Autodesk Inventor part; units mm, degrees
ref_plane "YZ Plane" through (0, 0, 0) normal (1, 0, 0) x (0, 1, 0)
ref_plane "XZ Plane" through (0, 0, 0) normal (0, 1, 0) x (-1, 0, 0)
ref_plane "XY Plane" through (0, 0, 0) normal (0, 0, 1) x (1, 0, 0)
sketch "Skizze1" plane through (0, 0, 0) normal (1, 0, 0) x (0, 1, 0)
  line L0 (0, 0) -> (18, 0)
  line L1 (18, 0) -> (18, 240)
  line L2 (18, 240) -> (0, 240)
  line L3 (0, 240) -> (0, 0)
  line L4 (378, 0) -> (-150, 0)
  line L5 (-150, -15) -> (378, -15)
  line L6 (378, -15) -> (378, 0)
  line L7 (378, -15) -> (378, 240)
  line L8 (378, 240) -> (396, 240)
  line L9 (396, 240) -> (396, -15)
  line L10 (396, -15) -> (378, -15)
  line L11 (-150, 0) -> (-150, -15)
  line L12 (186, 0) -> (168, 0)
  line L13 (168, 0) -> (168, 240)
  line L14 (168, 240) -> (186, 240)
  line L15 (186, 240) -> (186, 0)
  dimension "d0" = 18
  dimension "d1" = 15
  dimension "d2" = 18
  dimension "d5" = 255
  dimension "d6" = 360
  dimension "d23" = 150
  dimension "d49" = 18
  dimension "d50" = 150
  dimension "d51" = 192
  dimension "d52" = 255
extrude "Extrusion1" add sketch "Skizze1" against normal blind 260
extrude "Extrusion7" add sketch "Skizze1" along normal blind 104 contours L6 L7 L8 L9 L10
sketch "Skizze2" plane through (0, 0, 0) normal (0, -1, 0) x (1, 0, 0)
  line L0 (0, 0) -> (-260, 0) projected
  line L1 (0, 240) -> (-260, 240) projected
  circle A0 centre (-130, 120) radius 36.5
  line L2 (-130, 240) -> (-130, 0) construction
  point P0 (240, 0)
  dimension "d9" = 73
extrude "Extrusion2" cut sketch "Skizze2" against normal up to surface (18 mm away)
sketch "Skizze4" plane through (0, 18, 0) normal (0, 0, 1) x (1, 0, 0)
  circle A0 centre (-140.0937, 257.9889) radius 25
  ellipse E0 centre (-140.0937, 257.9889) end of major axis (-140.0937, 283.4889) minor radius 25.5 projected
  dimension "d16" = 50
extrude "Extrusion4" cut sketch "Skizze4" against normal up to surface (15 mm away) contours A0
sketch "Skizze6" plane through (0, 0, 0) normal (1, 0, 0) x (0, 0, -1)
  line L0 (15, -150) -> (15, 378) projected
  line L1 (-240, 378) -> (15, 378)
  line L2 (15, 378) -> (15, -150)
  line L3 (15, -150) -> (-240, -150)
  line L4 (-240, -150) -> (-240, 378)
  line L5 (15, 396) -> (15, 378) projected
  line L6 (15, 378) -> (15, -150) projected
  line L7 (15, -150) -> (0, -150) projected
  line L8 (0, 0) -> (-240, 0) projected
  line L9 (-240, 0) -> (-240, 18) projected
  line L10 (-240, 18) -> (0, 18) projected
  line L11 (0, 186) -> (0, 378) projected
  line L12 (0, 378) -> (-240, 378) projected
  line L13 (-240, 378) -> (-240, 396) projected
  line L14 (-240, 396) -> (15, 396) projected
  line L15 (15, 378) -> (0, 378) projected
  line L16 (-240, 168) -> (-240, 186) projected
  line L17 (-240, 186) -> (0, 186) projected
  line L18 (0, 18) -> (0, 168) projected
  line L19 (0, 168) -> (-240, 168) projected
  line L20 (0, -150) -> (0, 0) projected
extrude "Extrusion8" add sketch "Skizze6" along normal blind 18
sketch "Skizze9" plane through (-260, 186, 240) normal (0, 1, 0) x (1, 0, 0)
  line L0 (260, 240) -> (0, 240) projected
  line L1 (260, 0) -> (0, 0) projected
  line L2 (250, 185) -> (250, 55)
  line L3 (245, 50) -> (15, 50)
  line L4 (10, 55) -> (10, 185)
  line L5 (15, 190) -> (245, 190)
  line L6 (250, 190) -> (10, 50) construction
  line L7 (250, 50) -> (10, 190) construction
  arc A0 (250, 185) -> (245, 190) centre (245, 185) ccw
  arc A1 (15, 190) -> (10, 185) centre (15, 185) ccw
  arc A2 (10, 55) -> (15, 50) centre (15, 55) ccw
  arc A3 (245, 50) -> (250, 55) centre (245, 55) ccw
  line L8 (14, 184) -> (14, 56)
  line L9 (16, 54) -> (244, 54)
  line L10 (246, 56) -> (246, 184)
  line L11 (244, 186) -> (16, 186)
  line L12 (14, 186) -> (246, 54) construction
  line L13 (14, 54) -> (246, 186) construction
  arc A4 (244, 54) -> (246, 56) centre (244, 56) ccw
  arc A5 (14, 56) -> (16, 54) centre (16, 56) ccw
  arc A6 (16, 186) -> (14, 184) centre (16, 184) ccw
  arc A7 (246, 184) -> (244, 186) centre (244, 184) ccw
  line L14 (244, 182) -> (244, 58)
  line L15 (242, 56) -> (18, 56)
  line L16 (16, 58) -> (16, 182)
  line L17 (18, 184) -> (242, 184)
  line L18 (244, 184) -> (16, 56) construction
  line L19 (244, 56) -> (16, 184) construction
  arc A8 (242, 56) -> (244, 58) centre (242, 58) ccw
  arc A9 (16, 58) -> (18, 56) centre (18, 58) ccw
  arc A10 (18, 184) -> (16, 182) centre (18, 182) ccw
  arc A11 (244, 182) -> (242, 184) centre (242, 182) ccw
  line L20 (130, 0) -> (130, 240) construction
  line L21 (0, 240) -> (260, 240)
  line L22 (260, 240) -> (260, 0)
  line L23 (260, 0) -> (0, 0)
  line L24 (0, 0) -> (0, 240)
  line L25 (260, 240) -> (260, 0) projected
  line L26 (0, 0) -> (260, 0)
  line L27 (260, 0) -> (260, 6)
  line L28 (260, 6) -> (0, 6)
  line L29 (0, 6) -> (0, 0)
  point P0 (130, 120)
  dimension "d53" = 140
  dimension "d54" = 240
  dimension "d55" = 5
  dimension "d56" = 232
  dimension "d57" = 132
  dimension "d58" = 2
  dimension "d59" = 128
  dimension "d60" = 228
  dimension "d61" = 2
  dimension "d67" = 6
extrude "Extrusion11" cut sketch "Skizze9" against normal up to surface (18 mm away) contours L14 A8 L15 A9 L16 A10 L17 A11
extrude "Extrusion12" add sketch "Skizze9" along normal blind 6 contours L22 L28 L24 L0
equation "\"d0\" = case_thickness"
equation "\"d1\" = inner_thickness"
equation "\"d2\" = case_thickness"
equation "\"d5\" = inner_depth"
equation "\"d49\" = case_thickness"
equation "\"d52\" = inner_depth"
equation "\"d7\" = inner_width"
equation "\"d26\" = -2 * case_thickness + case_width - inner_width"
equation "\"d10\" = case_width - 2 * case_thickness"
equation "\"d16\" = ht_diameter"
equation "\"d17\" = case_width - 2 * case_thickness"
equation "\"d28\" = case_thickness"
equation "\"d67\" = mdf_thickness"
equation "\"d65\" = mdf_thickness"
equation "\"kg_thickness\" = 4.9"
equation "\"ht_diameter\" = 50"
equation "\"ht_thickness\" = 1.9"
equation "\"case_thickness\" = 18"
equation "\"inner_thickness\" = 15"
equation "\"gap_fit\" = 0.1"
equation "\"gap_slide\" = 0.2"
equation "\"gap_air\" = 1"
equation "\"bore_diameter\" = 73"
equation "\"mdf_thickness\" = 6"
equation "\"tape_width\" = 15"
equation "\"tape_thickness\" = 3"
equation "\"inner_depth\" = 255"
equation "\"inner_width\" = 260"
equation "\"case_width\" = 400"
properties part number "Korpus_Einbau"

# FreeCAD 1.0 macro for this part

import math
import FreeCAD as App
import Part
import Sketcher

doc = App.newDocument("Part")
body = doc.addObject("PartDesign::Body", "Body")

# Sketch on YZ plane
sketch1 = body.newObject("Sketcher::SketchObject", "Sketch")
sketch1.AttachmentSupport = (doc.getObject("YZ_Plane"), [""])
sketch1.MapMode = "FlatFace"
sketch1.addGeometry(Part.LineSegment(App.Vector(0, 240, 0), App.Vector(0, 0, 0)), False)
sketch1.addGeometry(Part.LineSegment(App.Vector(0, 0, 0), App.Vector(-150, 0, 0)), False)
sketch1.addGeometry(Part.LineSegment(App.Vector(-150, 0, 0), App.Vector(-150, -15, 0)), False)
sketch1.addGeometry(Part.LineSegment(App.Vector(-150, -15, 0), App.Vector(396, -15, 0)), False)
sketch1.addGeometry(Part.LineSegment(App.Vector(396, -15, 0), App.Vector(396, 240, 0)), False)
sketch1.addGeometry(Part.LineSegment(App.Vector(396, 240, 0), App.Vector(378, 240, 0)), False)
sketch1.addGeometry(Part.LineSegment(App.Vector(378, 240, 0), App.Vector(378, 0, 0)), False)
sketch1.addGeometry(Part.LineSegment(App.Vector(378, 0, 0), App.Vector(186, 0, 0)), False)
sketch1.addGeometry(Part.LineSegment(App.Vector(186, 0, 0), App.Vector(186, 240, 0)), False)
sketch1.addGeometry(Part.LineSegment(App.Vector(186, 240, 0), App.Vector(168, 240, 0)), False)
sketch1.addGeometry(Part.LineSegment(App.Vector(168, 240, 0), App.Vector(168, 0, 0)), False)
sketch1.addGeometry(Part.LineSegment(App.Vector(168, 0, 0), App.Vector(18, 0, 0)), False)
sketch1.addGeometry(Part.LineSegment(App.Vector(18, 0, 0), App.Vector(18, 240, 0)), False)
sketch1.addGeometry(Part.LineSegment(App.Vector(18, 240, 0), App.Vector(0, 240, 0)), False)
sketch1.addConstraint(Sketcher.Constraint("Coincident", 0, 2, 1, 1))
sketch1.addConstraint(Sketcher.Constraint("Coincident", 1, 2, 2, 1))
sketch1.addConstraint(Sketcher.Constraint("Coincident", 2, 2, 3, 1))
sketch1.addConstraint(Sketcher.Constraint("Coincident", 3, 2, 4, 1))
sketch1.addConstraint(Sketcher.Constraint("Coincident", 4, 2, 5, 1))
sketch1.addConstraint(Sketcher.Constraint("Coincident", 5, 2, 6, 1))
sketch1.addConstraint(Sketcher.Constraint("Coincident", 6, 2, 7, 1))
sketch1.addConstraint(Sketcher.Constraint("Coincident", 7, 2, 8, 1))
sketch1.addConstraint(Sketcher.Constraint("Coincident", 8, 2, 9, 1))
sketch1.addConstraint(Sketcher.Constraint("Coincident", 9, 2, 10, 1))
sketch1.addConstraint(Sketcher.Constraint("Coincident", 10, 2, 11, 1))
sketch1.addConstraint(Sketcher.Constraint("Coincident", 11, 2, 12, 1))
sketch1.addConstraint(Sketcher.Constraint("Coincident", 12, 2, 13, 1))
sketch1.addConstraint(Sketcher.Constraint("Coincident", 13, 2, 0, 1))
sketch1.addConstraint(Sketcher.Constraint("Vertical", 0))
sketch1.addConstraint(Sketcher.Constraint("Horizontal", 1))
sketch1.addConstraint(Sketcher.Constraint("Vertical", 2))
sketch1.addConstraint(Sketcher.Constraint("Horizontal", 3))
sketch1.addConstraint(Sketcher.Constraint("Vertical", 4))
sketch1.addConstraint(Sketcher.Constraint("Horizontal", 5))
sketch1.addConstraint(Sketcher.Constraint("Vertical", 6))
sketch1.addConstraint(Sketcher.Constraint("Horizontal", 7))
sketch1.addConstraint(Sketcher.Constraint("Vertical", 8))
sketch1.addConstraint(Sketcher.Constraint("Horizontal", 9))
sketch1.addConstraint(Sketcher.Constraint("Vertical", 10))
sketch1.addConstraint(Sketcher.Constraint("Horizontal", 11))
sketch1.addConstraint(Sketcher.Constraint("Vertical", 12))
sketch1.addConstraint(Sketcher.Constraint("Horizontal", 13))
sketch1.addConstraint(Sketcher.Constraint("Coincident", 0, 2, -1, 1))
sketch1.addConstraint(Sketcher.Constraint("PointOnObject", 6, 2, -1))
sketch1.addConstraint(Sketcher.Constraint("PointOnObject", 10, 2, -1))
sketch1.addConstraint(Sketcher.Constraint("Horizontal", 5, 2, 8, 2))
sketch1.addConstraint(Sketcher.Constraint("Horizontal", 9, 2, 12, 2))
sketch1.addConstraint(Sketcher.Constraint("Equal", 5, 9))
sketch1.addConstraint(Sketcher.Constraint("Equal", 1, 11))
sketch1.addConstraint(Sketcher.Constraint("Equal", 9, 13))
sketch1.addConstraint(Sketcher.Constraint("DistanceX", 1, 2, 1, 1, 150.0))
sketch1.addConstraint(Sketcher.Constraint("DistanceX", 5, 2, 5, 1, 18.0))
sketch1.addConstraint(Sketcher.Constraint("DistanceX", 7, 2, 7, 1, 192.0))
sketch1.addConstraint(Sketcher.Constraint("DistanceY", 2, 2, 2, 1, 15.0))
sketch1.addConstraint(Sketcher.Constraint("DistanceY", 4, 1, 4, 2, 255.0))
pad1 = body.newObject("PartDesign::Pad", "Pad")
pad1.Profile = sketch1
pad1.Length = 260
pad1.Reversed = True

# Sketch on YZ plane
sketch2 = body.newObject("Sketcher::SketchObject", "Sketch001")
sketch2.AttachmentSupport = (doc.getObject("YZ_Plane"), [""])
sketch2.MapMode = "FlatFace"
sketch2.addGeometry(Part.LineSegment(App.Vector(378, 240, 0), App.Vector(378, -15, 0)), False)
sketch2.addGeometry(Part.LineSegment(App.Vector(378, -15, 0), App.Vector(396, -15, 0)), False)
sketch2.addGeometry(Part.LineSegment(App.Vector(396, -15, 0), App.Vector(396, 240, 0)), False)
sketch2.addGeometry(Part.LineSegment(App.Vector(396, 240, 0), App.Vector(378, 240, 0)), False)
sketch2.addConstraint(Sketcher.Constraint("Coincident", 0, 2, 1, 1))
sketch2.addConstraint(Sketcher.Constraint("Coincident", 1, 2, 2, 1))
sketch2.addConstraint(Sketcher.Constraint("Coincident", 2, 2, 3, 1))
sketch2.addConstraint(Sketcher.Constraint("Coincident", 3, 2, 0, 1))
sketch2.addConstraint(Sketcher.Constraint("Vertical", 0))
sketch2.addConstraint(Sketcher.Constraint("Horizontal", 1))
sketch2.addConstraint(Sketcher.Constraint("Vertical", 2))
sketch2.addConstraint(Sketcher.Constraint("Horizontal", 3))
sketch2.addConstraint(Sketcher.Constraint("DistanceX", 1, 1, 1, 2, 18.0))
sketch2.addConstraint(Sketcher.Constraint("DistanceY", 0, 2, 0, 1, 255.0))
sketch2.addConstraint(Sketcher.Constraint("DistanceY", 0, 2, -1, 1, 15.0))
sketch2.addConstraint(Sketcher.Constraint("DistanceX", -1, 1, 0, 2, 378.0))
pad2 = body.newObject("PartDesign::Pad", "Pad001")
pad2.Profile = sketch2
pad2.Length = 104

# Sketch on XZ plane
sketch3 = body.newObject("Sketcher::SketchObject", "Sketch002")
sketch3.AttachmentSupport = (doc.getObject("XZ_Plane"), [""])
sketch3.MapMode = "FlatFace"
sketch3.addGeometry(Part.Circle(App.Vector(-130, 120, 0), App.Vector(0, 0, 1), 36), False)
sketch3.addConstraint(Sketcher.Constraint("Diameter", 0, 73.0))
sketch3.addConstraint(Sketcher.Constraint("DistanceX", 0, 3, -1, 1, 130.0))
sketch3.addConstraint(Sketcher.Constraint("DistanceY", -1, 1, 0, 3, 120.0))
pocket1 = body.newObject("PartDesign::Pocket", "Pocket")
pocket1.Profile = sketch3
pocket1.Length = 18

# Sketch on XY plane
sketch4 = body.newObject("Sketcher::SketchObject", "Sketch003")
sketch4.AttachmentSupport = (doc.getObject("XY_Plane"), [""])
sketch4.MapMode = "FlatFace"
sketch4.addGeometry(Part.Circle(App.Vector(-140, 276, 0), App.Vector(0, 0, 1), 25), False)
sketch4.addConstraint(Sketcher.Constraint("Diameter", 0, 50.0))
sketch4.addConstraint(Sketcher.Constraint("DistanceY", -1, 1, 0, 3, 275.989))
sketch4.addConstraint(Sketcher.Constraint("DistanceX", 0, 3, -1, 1, 140.0937))
pocket2 = body.newObject("PartDesign::Pocket", "Pocket001")
pocket2.Profile = sketch4
pocket2.Length = 15

# Sketch on YZ plane
sketch5 = body.newObject("Sketcher::SketchObject", "Sketch004")
sketch5.AttachmentSupport = (doc.getObject("YZ_Plane"), [""])
sketch5.MapMode = "FlatFace"
sketch5.addGeometry(Part.LineSegment(App.Vector(-150, -15, 0), App.Vector(396, -15, 0)), False)
sketch5.addGeometry(Part.LineSegment(App.Vector(396, -15, 0), App.Vector(396, 240, 0)), False)
sketch5.addGeometry(Part.LineSegment(App.Vector(396, 240, 0), App.Vector(-150, 240, 0)), False)
sketch5.addGeometry(Part.LineSegment(App.Vector(-150, 240, 0), App.Vector(-150, -15, 0)), False)
sketch5.addConstraint(Sketcher.Constraint("Coincident", 0, 2, 1, 1))
sketch5.addConstraint(Sketcher.Constraint("Coincident", 1, 2, 2, 1))
sketch5.addConstraint(Sketcher.Constraint("Coincident", 2, 2, 3, 1))
sketch5.addConstraint(Sketcher.Constraint("Coincident", 3, 2, 0, 1))
sketch5.addConstraint(Sketcher.Constraint("Horizontal", 0))
sketch5.addConstraint(Sketcher.Constraint("Vertical", 1))
sketch5.addConstraint(Sketcher.Constraint("Horizontal", 2))
sketch5.addConstraint(Sketcher.Constraint("Vertical", 3))
sketch5.addConstraint(Sketcher.Constraint("DistanceX", 0, 1, 0, 2, 546.0))
sketch5.addConstraint(Sketcher.Constraint("DistanceY", 1, 1, 1, 2, 255.0))
sketch5.addConstraint(Sketcher.Constraint("DistanceX", -1, 1, 0, 2, 396.0))
sketch5.addConstraint(Sketcher.Constraint("DistanceY", 0, 2, -1, 1, 15.0))
pad3 = body.newObject("PartDesign::Pad", "Pad002")
pad3.Profile = sketch5
pad3.Length = 18

# Sketch on XZ plane
sketch6 = body.newObject("Sketcher::SketchObject", "Sketch005")
sketch6.AttachmentSupport = (doc.getObject("XZ_Plane"), [""])
sketch6.MapMode = "FlatFace"
sketch6.AttachmentOffset = App.Placement(App.Vector(0, 0, -186), App.Rotation())
sketch6.addGeometry(Part.LineSegment(App.Vector(-16, 182, 0), App.Vector(-16, 58, 0)), False)
sketch6.addGeometry(Part.ArcOfCircle(Part.Circle(App.Vector(-18, 58, 0), App.Vector(0, 0, 1), 2), math.radians(-90), math.radians(0)), False)
sketch6.addGeometry(Part.LineSegment(App.Vector(-18, 56, 0), App.Vector(-242, 56, 0)), False)
sketch6.addGeometry(Part.ArcOfCircle(Part.Circle(App.Vector(-242, 58, 0), App.Vector(0, 0, 1), 2), math.radians(180), math.radians(270)), False)
sketch6.addGeometry(Part.LineSegment(App.Vector(-244, 58, 0), App.Vector(-244, 182, 0)), False)
sketch6.addGeometry(Part.ArcOfCircle(Part.Circle(App.Vector(-242, 182, 0), App.Vector(0, 0, 1), 2), math.radians(90), math.radians(180)), False)
sketch6.addGeometry(Part.LineSegment(App.Vector(-242, 184, 0), App.Vector(-18, 184, 0)), False)
sketch6.addGeometry(Part.ArcOfCircle(Part.Circle(App.Vector(-18, 182, 0), App.Vector(0, 0, 1), 2), math.radians(0), math.radians(90)), False)
sketch6.addConstraint(Sketcher.Constraint("Tangent", 0, 2, 1, 2))
sketch6.addConstraint(Sketcher.Constraint("Tangent", 1, 1, 2, 1))
sketch6.addConstraint(Sketcher.Constraint("Tangent", 2, 2, 3, 2))
sketch6.addConstraint(Sketcher.Constraint("Tangent", 3, 1, 4, 1))
sketch6.addConstraint(Sketcher.Constraint("Tangent", 4, 2, 5, 2))
sketch6.addConstraint(Sketcher.Constraint("Tangent", 5, 1, 6, 1))
sketch6.addConstraint(Sketcher.Constraint("Tangent", 6, 2, 7, 2))
sketch6.addConstraint(Sketcher.Constraint("Tangent", 7, 1, 0, 1))
sketch6.addConstraint(Sketcher.Constraint("Vertical", 0))
sketch6.addConstraint(Sketcher.Constraint("Horizontal", 2))
sketch6.addConstraint(Sketcher.Constraint("Vertical", 4))
sketch6.addConstraint(Sketcher.Constraint("Horizontal", 6))
sketch6.addConstraint(Sketcher.Constraint("Equal", 1, 3))
sketch6.addConstraint(Sketcher.Constraint("Equal", 3, 5))
sketch6.addConstraint(Sketcher.Constraint("Equal", 5, 7))
sketch6.addConstraint(Sketcher.Constraint("Radius", 1, 2.0))
sketch6.addConstraint(Sketcher.Constraint("DistanceY", 2, 2, 5, 1, 128.0))
sketch6.addConstraint(Sketcher.Constraint("DistanceX", 2, 2, 2, 1, 224.0))
sketch6.addConstraint(Sketcher.Constraint("DistanceX", 1, 3, -1, 1, 18.0))
sketch6.addConstraint(Sketcher.Constraint("DistanceY", -1, 1, 1, 3, 58.0))
pocket3 = body.newObject("PartDesign::Pocket", "Pocket002")
pocket3.Profile = sketch6
pocket3.Length = 18
pocket3.Reversed = True

# Sketch on XZ plane
sketch7 = body.newObject("Sketcher::SketchObject", "Sketch006")
sketch7.AttachmentSupport = (doc.getObject("XZ_Plane"), [""])
sketch7.MapMode = "FlatFace"
sketch7.AttachmentOffset = App.Placement(App.Vector(0, 0, -186), App.Rotation())
sketch7.addGeometry(Part.LineSegment(App.Vector(0, 234, 0), App.Vector(0, 0, 0)), False)
sketch7.addGeometry(Part.LineSegment(App.Vector(0, 0, 0), App.Vector(-260, 0, 0)), False)
sketch7.addGeometry(Part.LineSegment(App.Vector(-260, 0, 0), App.Vector(-260, 234, 0)), False)
sketch7.addGeometry(Part.LineSegment(App.Vector(-260, 234, 0), App.Vector(0, 234, 0)), False)
sketch7.addGeometry(Part.ArcOfCircle(Part.Circle(App.Vector(-15, 55, 0), App.Vector(0, 0, 1), 5), math.radians(-90), math.radians(0)), False)
sketch7.addGeometry(Part.LineSegment(App.Vector(-10, 55, 0), App.Vector(-10, 185, 0)), False)
sketch7.addGeometry(Part.ArcOfCircle(Part.Circle(App.Vector(-15, 185, 0), App.Vector(0, 0, 1), 5), math.radians(0), math.radians(90)), False)
sketch7.addGeometry(Part.LineSegment(App.Vector(-15, 190, 0), App.Vector(-245, 190, 0)), False)
sketch7.addGeometry(Part.ArcOfCircle(Part.Circle(App.Vector(-245, 185, 0), App.Vector(0, 0, 1), 5), math.radians(90), math.radians(180)), False)
sketch7.addGeometry(Part.LineSegment(App.Vector(-250, 185, 0), App.Vector(-250, 55, 0)), False)
sketch7.addGeometry(Part.ArcOfCircle(Part.Circle(App.Vector(-245, 55, 0), App.Vector(0, 0, 1), 5), math.radians(180), math.radians(270)), False)
sketch7.addGeometry(Part.LineSegment(App.Vector(-245, 50, 0), App.Vector(-15, 50, 0)), False)
sketch7.addConstraint(Sketcher.Constraint("Coincident", 0, 2, 1, 1))
sketch7.addConstraint(Sketcher.Constraint("Coincident", 1, 2, 2, 1))
sketch7.addConstraint(Sketcher.Constraint("Coincident", 2, 2, 3, 1))
sketch7.addConstraint(Sketcher.Constraint("Coincident", 3, 2, 0, 1))
sketch7.addConstraint(Sketcher.Constraint("Tangent", 4, 2, 5, 1))
sketch7.addConstraint(Sketcher.Constraint("Tangent", 5, 2, 6, 1))
sketch7.addConstraint(Sketcher.Constraint("Tangent", 6, 2, 7, 1))
sketch7.addConstraint(Sketcher.Constraint("Tangent", 7, 2, 8, 1))
sketch7.addConstraint(Sketcher.Constraint("Tangent", 8, 2, 9, 1))
sketch7.addConstraint(Sketcher.Constraint("Tangent", 9, 2, 10, 1))
sketch7.addConstraint(Sketcher.Constraint("Tangent", 10, 2, 11, 1))
sketch7.addConstraint(Sketcher.Constraint("Tangent", 11, 2, 4, 1))
sketch7.addConstraint(Sketcher.Constraint("Vertical", 0))
sketch7.addConstraint(Sketcher.Constraint("Horizontal", 1))
sketch7.addConstraint(Sketcher.Constraint("Vertical", 2))
sketch7.addConstraint(Sketcher.Constraint("Horizontal", 3))
sketch7.addConstraint(Sketcher.Constraint("Vertical", 5))
sketch7.addConstraint(Sketcher.Constraint("Horizontal", 7))
sketch7.addConstraint(Sketcher.Constraint("Vertical", 9))
sketch7.addConstraint(Sketcher.Constraint("Horizontal", 11))
sketch7.addConstraint(Sketcher.Constraint("Coincident", 0, 2, -1, 1))
sketch7.addConstraint(Sketcher.Constraint("Equal", 4, 6))
sketch7.addConstraint(Sketcher.Constraint("Equal", 6, 8))
sketch7.addConstraint(Sketcher.Constraint("Equal", 8, 10))
sketch7.addConstraint(Sketcher.Constraint("Radius", 4, 5.0))
sketch7.addConstraint(Sketcher.Constraint("DistanceX", 1, 2, 1, 1, 260.0))
sketch7.addConstraint(Sketcher.Constraint("DistanceX", 7, 2, 7, 1, 230.0))
sketch7.addConstraint(Sketcher.Constraint("DistanceY", 0, 2, 0, 1, 234.0))
sketch7.addConstraint(Sketcher.Constraint("DistanceY", 5, 1, 5, 2, 130.0))
sketch7.addConstraint(Sketcher.Constraint("DistanceX", 4, 3, -1, 1, 15.0))
sketch7.addConstraint(Sketcher.Constraint("DistanceY", -1, 1, 4, 3, 55.0))
pad4 = body.newObject("PartDesign::Pad", "Pad003")
pad4.Profile = sketch7
pad4.Length = 6
pad4.Reversed = True

doc.recompute()
